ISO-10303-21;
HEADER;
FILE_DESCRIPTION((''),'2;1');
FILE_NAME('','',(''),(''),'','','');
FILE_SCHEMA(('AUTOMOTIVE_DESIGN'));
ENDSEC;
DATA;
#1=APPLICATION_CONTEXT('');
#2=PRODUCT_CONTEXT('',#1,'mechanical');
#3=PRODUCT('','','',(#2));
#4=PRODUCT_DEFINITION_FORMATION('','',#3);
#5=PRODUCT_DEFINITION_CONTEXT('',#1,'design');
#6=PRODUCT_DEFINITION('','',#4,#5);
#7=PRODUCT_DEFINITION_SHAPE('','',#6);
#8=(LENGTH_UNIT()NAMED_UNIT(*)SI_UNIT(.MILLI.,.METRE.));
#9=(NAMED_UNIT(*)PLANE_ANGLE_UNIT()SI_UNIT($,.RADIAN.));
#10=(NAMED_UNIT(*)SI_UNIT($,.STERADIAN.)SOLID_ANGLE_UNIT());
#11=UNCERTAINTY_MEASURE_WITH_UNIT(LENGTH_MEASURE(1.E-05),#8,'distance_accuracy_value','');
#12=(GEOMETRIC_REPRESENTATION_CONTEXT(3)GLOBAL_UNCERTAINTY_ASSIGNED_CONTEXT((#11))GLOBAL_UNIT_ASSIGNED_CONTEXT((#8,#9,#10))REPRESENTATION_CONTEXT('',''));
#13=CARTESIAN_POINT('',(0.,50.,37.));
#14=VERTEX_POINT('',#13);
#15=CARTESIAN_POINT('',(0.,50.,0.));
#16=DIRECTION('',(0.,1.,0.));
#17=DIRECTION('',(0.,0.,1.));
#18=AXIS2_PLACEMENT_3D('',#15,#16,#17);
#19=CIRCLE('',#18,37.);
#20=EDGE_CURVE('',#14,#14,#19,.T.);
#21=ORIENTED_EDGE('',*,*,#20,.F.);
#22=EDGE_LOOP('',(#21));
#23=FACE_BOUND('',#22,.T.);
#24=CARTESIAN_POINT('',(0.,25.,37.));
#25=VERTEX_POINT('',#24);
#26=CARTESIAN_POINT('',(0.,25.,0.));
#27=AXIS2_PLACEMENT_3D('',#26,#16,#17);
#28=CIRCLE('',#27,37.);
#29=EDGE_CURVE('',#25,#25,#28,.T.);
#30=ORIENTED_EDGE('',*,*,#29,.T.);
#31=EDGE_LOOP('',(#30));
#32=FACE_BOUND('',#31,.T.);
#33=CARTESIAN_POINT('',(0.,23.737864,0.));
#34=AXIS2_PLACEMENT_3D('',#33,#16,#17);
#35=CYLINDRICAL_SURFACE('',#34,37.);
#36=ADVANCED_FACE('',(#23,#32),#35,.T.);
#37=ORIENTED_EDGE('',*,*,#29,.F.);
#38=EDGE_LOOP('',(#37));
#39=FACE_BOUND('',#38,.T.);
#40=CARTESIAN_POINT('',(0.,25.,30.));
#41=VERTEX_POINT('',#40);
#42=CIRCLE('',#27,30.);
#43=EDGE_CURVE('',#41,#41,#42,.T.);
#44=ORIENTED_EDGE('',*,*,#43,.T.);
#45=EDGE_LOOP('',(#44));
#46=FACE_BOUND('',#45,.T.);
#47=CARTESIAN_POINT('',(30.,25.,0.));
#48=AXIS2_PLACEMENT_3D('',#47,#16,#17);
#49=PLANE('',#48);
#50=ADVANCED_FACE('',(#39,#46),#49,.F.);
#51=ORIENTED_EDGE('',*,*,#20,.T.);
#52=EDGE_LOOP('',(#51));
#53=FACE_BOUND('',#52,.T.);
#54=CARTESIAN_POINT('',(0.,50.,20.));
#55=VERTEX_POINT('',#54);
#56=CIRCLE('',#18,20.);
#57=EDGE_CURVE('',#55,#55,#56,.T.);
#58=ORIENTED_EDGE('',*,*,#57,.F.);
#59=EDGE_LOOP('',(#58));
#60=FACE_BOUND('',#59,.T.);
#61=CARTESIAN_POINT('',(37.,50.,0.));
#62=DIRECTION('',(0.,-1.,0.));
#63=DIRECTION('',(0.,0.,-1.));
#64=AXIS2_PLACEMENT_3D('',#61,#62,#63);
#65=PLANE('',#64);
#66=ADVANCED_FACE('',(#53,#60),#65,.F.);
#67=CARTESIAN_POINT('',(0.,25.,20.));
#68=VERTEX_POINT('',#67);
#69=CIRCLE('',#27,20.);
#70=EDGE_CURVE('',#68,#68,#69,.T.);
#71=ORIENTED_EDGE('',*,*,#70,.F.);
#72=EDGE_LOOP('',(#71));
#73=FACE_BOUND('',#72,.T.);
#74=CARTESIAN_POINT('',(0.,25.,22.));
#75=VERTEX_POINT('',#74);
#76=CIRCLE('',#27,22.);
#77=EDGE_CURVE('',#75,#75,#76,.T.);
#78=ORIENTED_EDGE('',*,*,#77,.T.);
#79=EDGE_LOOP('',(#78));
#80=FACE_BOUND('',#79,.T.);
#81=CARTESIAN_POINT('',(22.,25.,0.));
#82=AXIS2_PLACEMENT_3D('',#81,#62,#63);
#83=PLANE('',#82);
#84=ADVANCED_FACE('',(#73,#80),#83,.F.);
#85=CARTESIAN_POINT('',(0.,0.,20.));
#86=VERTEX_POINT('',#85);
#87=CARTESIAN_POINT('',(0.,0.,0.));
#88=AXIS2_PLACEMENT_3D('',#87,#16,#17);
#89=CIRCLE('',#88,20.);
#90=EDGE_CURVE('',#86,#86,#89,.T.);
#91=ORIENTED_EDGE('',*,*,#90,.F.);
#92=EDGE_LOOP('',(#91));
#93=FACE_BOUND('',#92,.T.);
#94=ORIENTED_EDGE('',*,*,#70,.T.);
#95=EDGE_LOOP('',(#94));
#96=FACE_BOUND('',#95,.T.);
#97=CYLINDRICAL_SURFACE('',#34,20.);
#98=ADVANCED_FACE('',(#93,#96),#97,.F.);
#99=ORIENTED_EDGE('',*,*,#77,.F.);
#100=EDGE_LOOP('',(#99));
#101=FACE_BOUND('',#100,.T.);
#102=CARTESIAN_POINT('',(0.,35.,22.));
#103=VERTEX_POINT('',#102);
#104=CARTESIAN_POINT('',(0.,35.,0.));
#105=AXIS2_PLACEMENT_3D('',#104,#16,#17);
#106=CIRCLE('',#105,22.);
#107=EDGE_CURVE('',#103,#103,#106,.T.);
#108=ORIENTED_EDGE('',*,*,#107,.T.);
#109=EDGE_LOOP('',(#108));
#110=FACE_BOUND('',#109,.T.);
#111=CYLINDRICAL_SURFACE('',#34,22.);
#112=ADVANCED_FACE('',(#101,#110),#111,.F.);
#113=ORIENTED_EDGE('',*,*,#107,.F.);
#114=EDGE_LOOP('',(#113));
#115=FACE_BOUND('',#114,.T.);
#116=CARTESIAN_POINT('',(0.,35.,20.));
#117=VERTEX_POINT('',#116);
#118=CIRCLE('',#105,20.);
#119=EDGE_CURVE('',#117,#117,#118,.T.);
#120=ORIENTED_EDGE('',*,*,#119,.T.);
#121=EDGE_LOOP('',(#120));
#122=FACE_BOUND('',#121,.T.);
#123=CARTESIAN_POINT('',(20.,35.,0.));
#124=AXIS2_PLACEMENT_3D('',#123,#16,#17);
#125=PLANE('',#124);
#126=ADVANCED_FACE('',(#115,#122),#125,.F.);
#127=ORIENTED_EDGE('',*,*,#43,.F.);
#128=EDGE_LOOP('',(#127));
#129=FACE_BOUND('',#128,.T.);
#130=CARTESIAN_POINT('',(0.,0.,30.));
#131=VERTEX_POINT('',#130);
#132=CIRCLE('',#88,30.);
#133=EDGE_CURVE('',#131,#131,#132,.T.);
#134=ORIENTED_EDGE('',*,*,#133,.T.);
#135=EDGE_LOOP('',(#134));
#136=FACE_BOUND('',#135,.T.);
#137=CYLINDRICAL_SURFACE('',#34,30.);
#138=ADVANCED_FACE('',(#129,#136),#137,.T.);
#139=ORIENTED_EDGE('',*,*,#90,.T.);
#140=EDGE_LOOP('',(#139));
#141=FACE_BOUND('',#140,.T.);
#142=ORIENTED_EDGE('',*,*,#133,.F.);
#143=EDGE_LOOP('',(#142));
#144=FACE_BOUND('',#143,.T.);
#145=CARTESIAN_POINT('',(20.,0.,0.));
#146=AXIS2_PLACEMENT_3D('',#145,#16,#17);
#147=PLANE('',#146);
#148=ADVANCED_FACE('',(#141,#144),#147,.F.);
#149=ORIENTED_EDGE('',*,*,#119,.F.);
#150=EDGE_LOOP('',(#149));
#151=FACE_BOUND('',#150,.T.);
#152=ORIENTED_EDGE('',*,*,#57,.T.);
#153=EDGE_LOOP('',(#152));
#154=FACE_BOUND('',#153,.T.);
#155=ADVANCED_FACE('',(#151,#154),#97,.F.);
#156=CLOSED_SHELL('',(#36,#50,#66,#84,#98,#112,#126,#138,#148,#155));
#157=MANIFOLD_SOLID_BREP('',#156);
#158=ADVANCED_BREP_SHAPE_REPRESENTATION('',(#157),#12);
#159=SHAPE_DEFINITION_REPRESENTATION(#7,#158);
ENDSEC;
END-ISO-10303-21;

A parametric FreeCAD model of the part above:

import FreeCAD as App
import Part
import Sketcher
from FreeCAD import Vector
Q = App.Units.Quantity

doc = App.newDocument("Part")
body = doc.addObject("PartDesign::Body", "Body")

# Sketch on XY plane
sketch1 = body.newObject("Sketcher::SketchObject", "Sketch")
sketch1.AttachmentSupport = (doc.getObject("XY_Plane"), [""])
sketch1.MapMode = "FlatFace"
sketch1.addGeometry([
    Part.LineSegment(Vector(-20, 50, 0), Vector(-37, 50, 0)),  # 0
    Part.LineSegment(Vector(-37, 50, 0), Vector(-37, 25, 0)),  # 1
    Part.LineSegment(Vector(-37, 25, 0), Vector(-30, 25, 0)),  # 2
    Part.LineSegment(Vector(-30, 25, 0), Vector(-30, 0, 0)),  # 3
    Part.LineSegment(Vector(-30, 0, 0), Vector(-20, 0, 0)),  # 4
    Part.LineSegment(Vector(-20, 0, 0), Vector(-20, 25, 0)),  # 5
    Part.LineSegment(Vector(-20, 25, 0), Vector(-22, 25, 0)),  # 6
    Part.LineSegment(Vector(-22, 25, 0), Vector(-22, 35, 0)),  # 7
    Part.LineSegment(Vector(-22, 35, 0), Vector(-20, 35, 0)),  # 8
    Part.LineSegment(Vector(-20, 35, 0), Vector(-20, 50, 0)),  # 9
], False)
sketch1.addConstraint([
    Sketcher.Constraint("Coincident", 0, 2, 1, 1),
    Sketcher.Constraint("Coincident", 1, 2, 2, 1),
    Sketcher.Constraint("Coincident", 2, 2, 3, 1),
    Sketcher.Constraint("Coincident", 3, 2, 4, 1),
    Sketcher.Constraint("Coincident", 4, 2, 5, 1),
    Sketcher.Constraint("Coincident", 5, 2, 6, 1),
    Sketcher.Constraint("Coincident", 6, 2, 7, 1),
    Sketcher.Constraint("Coincident", 7, 2, 8, 1),
    Sketcher.Constraint("Coincident", 8, 2, 9, 1),
    Sketcher.Constraint("Coincident", 9, 2, 0, 1),
    Sketcher.Constraint("Horizontal", 0),
    Sketcher.Constraint("Vertical", 1),
    Sketcher.Constraint("Horizontal", 2),
    Sketcher.Constraint("Vertical", 3),
    Sketcher.Constraint("Horizontal", 4),
    Sketcher.Constraint("Vertical", 5),
    Sketcher.Constraint("Horizontal", 6),
    Sketcher.Constraint("Vertical", 7),
    Sketcher.Constraint("Horizontal", 8),
    Sketcher.Constraint("Vertical", 9),
    Sketcher.Constraint("PointOnObject", 3, 2, -1),
    Sketcher.Constraint("Horizontal", 2, 2, 5, 2),
    Sketcher.Constraint("Vertical", 5, 2, 8, 2),
    Sketcher.Constraint("Equal", 1, 3),
    Sketcher.Constraint("Equal", 4, 7),
    Sketcher.Constraint("DistanceX", 0, 2, 0, 1, Q("17 mm")),
    Sketcher.Constraint("DistanceX", 2, 1, 2, 2, Q("7 mm")),
    Sketcher.Constraint("DistanceX", 6, 2, 6, 1, Q("2 mm")),
    Sketcher.Constraint("DistanceY", 1, 2, 1, 1, Q("25 mm")),
    Sketcher.Constraint("DistanceX", 0, 2, -1, 1, Q("37 mm")),
])
revolution = body.newObject("PartDesign::Revolution", "Revolution")
revolution.Profile = sketch1
revolution.ReferenceAxis = (sketch1, ["V_Axis"])
revolution.Angle = 360

doc.recompute()
